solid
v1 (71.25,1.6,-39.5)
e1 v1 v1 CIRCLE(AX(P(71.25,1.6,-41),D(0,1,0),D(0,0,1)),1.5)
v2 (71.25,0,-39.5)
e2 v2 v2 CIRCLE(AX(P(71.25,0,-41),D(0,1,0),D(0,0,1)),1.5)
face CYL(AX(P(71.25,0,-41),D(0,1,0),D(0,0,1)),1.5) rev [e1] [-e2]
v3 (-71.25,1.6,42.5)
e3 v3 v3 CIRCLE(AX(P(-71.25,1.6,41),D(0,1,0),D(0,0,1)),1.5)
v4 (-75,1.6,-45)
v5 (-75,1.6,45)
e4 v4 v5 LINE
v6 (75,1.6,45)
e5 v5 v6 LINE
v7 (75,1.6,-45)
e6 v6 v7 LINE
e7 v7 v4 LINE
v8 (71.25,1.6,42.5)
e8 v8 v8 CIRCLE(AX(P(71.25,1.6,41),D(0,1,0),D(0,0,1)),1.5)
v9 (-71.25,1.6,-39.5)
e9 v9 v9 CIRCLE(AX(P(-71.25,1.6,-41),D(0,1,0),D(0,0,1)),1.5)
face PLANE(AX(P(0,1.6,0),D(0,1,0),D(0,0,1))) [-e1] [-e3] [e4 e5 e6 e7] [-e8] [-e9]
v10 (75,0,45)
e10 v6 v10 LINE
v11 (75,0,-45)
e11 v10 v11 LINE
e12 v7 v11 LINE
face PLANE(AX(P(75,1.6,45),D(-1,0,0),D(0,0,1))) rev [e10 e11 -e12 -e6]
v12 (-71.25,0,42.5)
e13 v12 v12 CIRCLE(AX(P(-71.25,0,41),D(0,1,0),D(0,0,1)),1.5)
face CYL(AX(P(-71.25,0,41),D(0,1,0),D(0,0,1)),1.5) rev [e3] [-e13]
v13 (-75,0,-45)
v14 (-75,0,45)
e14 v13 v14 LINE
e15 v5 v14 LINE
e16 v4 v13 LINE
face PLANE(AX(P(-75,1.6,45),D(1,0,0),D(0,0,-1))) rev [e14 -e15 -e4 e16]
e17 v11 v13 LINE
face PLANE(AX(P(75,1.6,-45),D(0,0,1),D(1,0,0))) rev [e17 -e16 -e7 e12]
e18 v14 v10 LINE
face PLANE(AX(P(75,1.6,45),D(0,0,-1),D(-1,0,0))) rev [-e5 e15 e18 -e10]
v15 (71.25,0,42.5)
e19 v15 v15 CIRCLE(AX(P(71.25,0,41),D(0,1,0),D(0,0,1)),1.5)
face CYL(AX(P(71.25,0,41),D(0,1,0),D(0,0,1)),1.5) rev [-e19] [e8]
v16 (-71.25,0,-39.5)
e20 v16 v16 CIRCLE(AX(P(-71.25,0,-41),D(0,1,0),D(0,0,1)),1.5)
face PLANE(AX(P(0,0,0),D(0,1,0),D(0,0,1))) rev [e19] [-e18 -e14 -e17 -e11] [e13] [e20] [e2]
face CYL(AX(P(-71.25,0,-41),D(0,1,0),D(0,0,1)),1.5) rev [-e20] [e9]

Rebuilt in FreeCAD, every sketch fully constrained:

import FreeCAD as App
import Part
import Sketcher

V = App.Vector

doc = App.newDocument("Part")
body = doc.addObject("PartDesign::Body", "Body")

sketch1 = body.newObject("Sketcher::SketchObject", "Sketch")
sketch1.AttachmentSupport = (doc.getObject("XZ_Plane"), [""])
sketch1.MapMode = "FlatFace"
sketch1.addGeometry([
    Part.LineSegment(V(-75, -45, 0), V(-75, 45, 0)),
    Part.LineSegment(V(-75, 45, 0), V(75, 45, 0)),
    Part.LineSegment(V(75, 45, 0), V(75, -45, 0)),
    Part.LineSegment(V(75, -45, 0), V(-75, -45, 0)),
], False)
sketch1.addConstraint([
    Sketcher.Constraint("Coincident", 0, 2, 1, 1),
    Sketcher.Constraint("Coincident", 1, 2, 2, 1),
    Sketcher.Constraint("Coincident", 2, 2, 3, 1),
    Sketcher.Constraint("Coincident", 3, 2, 0, 1),
    Sketcher.Constraint("Vertical", 0),
    Sketcher.Constraint("Horizontal", 1),
    Sketcher.Constraint("Vertical", 2),
    Sketcher.Constraint("Horizontal", 3),
    Sketcher.Constraint("Symmetric", 0, 2, 2, 2, -1, 1),
    Sketcher.Constraint("DistanceX", 1, 1, 1, 2, 150.0),
    Sketcher.Constraint("DistanceY", 0, 1, 0, 2, 90.0),
])
pad1 = body.newObject("PartDesign::Pad", "Pad")
pad1.Profile = sketch1
pad1.Length = 1.6
pad1.Reversed = True

sketch2 = body.newObject("Sketcher::SketchObject", "Sketch001")
sketch2.AttachmentSupport = (doc.getObject("XZ_Plane"), [""])
sketch2.MapMode = "FlatFace"
sketch2.AttachmentOffset = App.Placement(V(0, 0, -1.6), App.Rotation())
sketch2.addGeometry([
    Part.Circle(V(-71.25, -41, 0), V(0, 0, 1), 1.5),
    Part.Circle(V(-71.25, 41, 0), V(0, 0, 1), 1.5),
    Part.Circle(V(71.25, 41, 0), V(0, 0, 1), 1.5),
    Part.Circle(V(71.25, -41, 0), V(0, 0, 1), 1.5),
], False)
sketch2.addConstraint([
    Sketcher.Constraint("Equal", 0, 1),
    Sketcher.Constraint("Equal", 1, 2),
    Sketcher.Constraint("Equal", 2, 3),
    Sketcher.Constraint("Symmetric", 0, 3, 2, 3, -1, 1),
    Sketcher.Constraint("Symmetric", 1, 3, 3, 3, -1, 1),
    Sketcher.Constraint("Symmetric", 1, 3, 2, 3, -2),
    Sketcher.Constraint("Diameter", 0, 3.0),
    Sketcher.Constraint("DistanceY", 0, 3, -1, 1, 41.0),
    Sketcher.Constraint("DistanceX", 1, 3, 2, 3, 142.5),
])
pocket1 = body.newObject("PartDesign::Pocket", "Pocket")
pocket1.Profile = sketch2
pocket1.Length = 1.6
pocket1.Reversed = True

doc.recompute()
